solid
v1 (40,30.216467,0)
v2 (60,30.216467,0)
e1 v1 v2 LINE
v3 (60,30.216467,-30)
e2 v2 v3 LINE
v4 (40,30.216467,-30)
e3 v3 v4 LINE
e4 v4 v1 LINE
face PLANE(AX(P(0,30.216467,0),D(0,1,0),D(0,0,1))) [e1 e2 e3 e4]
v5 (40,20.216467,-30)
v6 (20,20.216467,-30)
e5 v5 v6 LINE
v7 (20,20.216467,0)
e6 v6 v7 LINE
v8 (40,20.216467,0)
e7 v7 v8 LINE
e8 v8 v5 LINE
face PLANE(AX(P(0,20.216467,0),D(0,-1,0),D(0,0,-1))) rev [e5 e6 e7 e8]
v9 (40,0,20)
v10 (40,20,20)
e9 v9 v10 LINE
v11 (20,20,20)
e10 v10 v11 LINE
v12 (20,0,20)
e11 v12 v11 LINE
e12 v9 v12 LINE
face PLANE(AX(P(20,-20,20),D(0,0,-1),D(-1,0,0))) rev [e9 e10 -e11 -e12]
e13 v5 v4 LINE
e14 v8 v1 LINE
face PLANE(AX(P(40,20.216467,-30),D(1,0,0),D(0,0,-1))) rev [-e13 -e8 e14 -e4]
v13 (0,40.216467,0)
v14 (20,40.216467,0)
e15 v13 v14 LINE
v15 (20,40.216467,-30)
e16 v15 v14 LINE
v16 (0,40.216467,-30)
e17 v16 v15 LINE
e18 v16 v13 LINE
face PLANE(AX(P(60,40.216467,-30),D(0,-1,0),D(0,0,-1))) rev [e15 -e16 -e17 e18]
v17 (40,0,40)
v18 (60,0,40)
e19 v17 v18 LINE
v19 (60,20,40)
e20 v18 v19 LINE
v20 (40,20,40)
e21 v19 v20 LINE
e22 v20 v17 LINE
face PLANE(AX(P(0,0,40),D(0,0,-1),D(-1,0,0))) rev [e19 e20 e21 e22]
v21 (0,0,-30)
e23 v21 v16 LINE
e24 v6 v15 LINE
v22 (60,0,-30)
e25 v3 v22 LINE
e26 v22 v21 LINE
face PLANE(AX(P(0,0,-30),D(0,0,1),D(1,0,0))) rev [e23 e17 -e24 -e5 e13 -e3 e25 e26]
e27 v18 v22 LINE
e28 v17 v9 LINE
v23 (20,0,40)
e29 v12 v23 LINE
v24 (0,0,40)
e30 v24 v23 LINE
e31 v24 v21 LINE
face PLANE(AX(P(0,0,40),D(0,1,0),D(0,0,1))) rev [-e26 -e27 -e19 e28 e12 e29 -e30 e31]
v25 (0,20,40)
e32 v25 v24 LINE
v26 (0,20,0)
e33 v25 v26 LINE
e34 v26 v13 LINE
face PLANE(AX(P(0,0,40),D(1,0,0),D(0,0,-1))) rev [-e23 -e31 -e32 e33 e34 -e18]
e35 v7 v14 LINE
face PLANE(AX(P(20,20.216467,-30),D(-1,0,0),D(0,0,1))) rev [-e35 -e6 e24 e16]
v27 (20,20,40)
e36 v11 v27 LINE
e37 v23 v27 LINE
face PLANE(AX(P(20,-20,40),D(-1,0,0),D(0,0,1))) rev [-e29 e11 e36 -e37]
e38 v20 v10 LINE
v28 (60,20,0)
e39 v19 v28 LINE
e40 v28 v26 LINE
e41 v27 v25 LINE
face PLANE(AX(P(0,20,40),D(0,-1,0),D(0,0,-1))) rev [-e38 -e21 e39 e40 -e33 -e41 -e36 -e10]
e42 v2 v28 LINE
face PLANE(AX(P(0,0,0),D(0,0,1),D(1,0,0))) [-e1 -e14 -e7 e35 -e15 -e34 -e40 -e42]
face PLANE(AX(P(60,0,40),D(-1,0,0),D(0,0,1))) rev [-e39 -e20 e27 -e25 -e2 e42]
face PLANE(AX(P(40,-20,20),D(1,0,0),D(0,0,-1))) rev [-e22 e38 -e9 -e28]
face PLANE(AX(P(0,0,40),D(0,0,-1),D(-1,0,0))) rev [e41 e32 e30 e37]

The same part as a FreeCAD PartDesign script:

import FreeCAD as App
import Part
import Sketcher
from FreeCAD import Vector


def add_polygon(sketch, points):
    """Adds a closed chain of lines whose ends are joined by coincident constraints."""
    first, n = sketch.GeometryCount, len(points)
    for a, b in zip(points, points[1:] + points[:1]):
        sketch.addGeometry(Part.LineSegment(App.Vector(*a, 0), App.Vector(*b, 0)), False)
    for i in range(n):
        sketch.addConstraint(Sketcher.Constraint("Coincident", first + i, 2, first + (i + 1) % n, 1))

doc = App.newDocument("Part")
body = doc.addObject("PartDesign::Body", "Body")

# Sketch on XY plane
sketch1 = doc.addObject("Sketcher::SketchObject", "Sketch")
body.addObject(sketch1)
sketch1.AttachmentSupport = (doc.XY_Plane, [""])
sketch1.MapMode = "FlatFace"
add_polygon(sketch1, [(0, 20), (0, 0), (60, 0), (60, 20)])  # lines 0-3
sketch1.addConstraint(Sketcher.Constraint("Vertical", 0))
sketch1.addConstraint(Sketcher.Constraint("Horizontal", 1))
sketch1.addConstraint(Sketcher.Constraint("Vertical", 2))
sketch1.addConstraint(Sketcher.Constraint("Horizontal", 3))
sketch1.addConstraint(Sketcher.Constraint("Coincident", 0, 2, -1, 1))
sketch1.addConstraint(Sketcher.Constraint("DistanceX", 1, 1, 1, 2, 60.0))
sketch1.addConstraint(Sketcher.Constraint("DistanceY", 0, 2, 0, 1, 20.0))
pad1 = doc.addObject("PartDesign::Pad", "Pad")
body.addObject(pad1)
pad1.Profile = sketch1
pad1.Length = 40

# Sketch on XZ plane
sketch2 = doc.addObject("Sketcher::SketchObject", "Sketch001")
body.addObject(sketch2)
sketch2.AttachmentSupport = (doc.XZ_Plane, [""])
sketch2.MapMode = "FlatFace"
sketch2.AttachmentOffset = App.Placement(Vector(0, 0, -20), App.Rotation())
add_polygon(sketch2, [(20, 20), (20, 40), (40, 40), (40, 20)])  # lines 0-3
sketch2.addConstraint(Sketcher.Constraint("Vertical", 0))
sketch2.addConstraint(Sketcher.Constraint("Horizontal", 1))
sketch2.addConstraint(Sketcher.Constraint("Vertical", 2))
sketch2.addConstraint(Sketcher.Constraint("Horizontal", 3))
sketch2.addConstraint(Sketcher.Constraint("Equal", 3, 0))
sketch2.addConstraint(Sketcher.Constraint("DistanceX", 1, 1, 1, 2, 20.0))
sketch2.addConstraint(Sketcher.Constraint("DistanceX", -1, 1, 0, 2, 20.0))
sketch2.addConstraint(Sketcher.Constraint("DistanceY", -1, 1, 0, 2, 40.0))
pocket1 = doc.addObject("PartDesign::Pocket", "Pocket")
body.addObject(pocket1)
pocket1.Profile = sketch2
pocket1.Length = 40
pocket1.Reversed = True

# Sketch on XY plane
sketch3 = doc.addObject("Sketcher::SketchObject", "Sketch002")
body.addObject(sketch3)
sketch3.AttachmentSupport = (doc.XY_Plane, [""])
sketch3.MapMode = "FlatFace"
add_polygon(sketch3, [(60, 40.216467), (60, 0), (0, 0), (0, 40.216467)])  # lines 0-3
sketch3.addConstraint(Sketcher.Constraint("Vertical", 0))
sketch3.addConstraint(Sketcher.Constraint("Horizontal", 1))
sketch3.addConstraint(Sketcher.Constraint("Vertical", 2))
sketch3.addConstraint(Sketcher.Constraint("Horizontal", 3))
sketch3.addConstraint(Sketcher.Constraint("Coincident", 1, 2, -1, 1))
sketch3.addConstraint(Sketcher.Constraint("DistanceX", 1, 2, 1, 1, 60.0))
sketch3.addConstraint(Sketcher.Constraint("DistanceY", 0, 2, 0, 1, 40.216467))
pad2 = doc.addObject("PartDesign::Pad", "Pad001")
body.addObject(pad2)
pad2.Profile = sketch3
pad2.Length = 30
pad2.Reversed = True

# Sketch on XZ plane
sketch4 = doc.addObject("Sketcher::SketchObject", "Sketch003")
body.addObject(sketch4)
sketch4.AttachmentSupport = (doc.XZ_Plane, [""])
sketch4.MapMode = "FlatFace"
sketch4.AttachmentOffset = App.Placement(Vector(0, 0, -40.216467), App.Rotation())
add_polygon(sketch4, [(20, -30), (20, 0), (40, 0), (40, -30)])  # lines 0-3
sketch4.addConstraint(Sketcher.Constraint("Vertical", 0))
sketch4.addConstraint(Sketcher.Constraint("Horizontal", 1))
sketch4.addConstraint(Sketcher.Constraint("Vertical", 2))
sketch4.addConstraint(Sketcher.Constraint("Horizontal", 3))
sketch4.addConstraint(Sketcher.Constraint("PointOnObject", 0, 2, -1))
sketch4.addConstraint(Sketcher.Constraint("DistanceX", 1, 1, 1, 2, 20.0))
sketch4.addConstraint(Sketcher.Constraint("DistanceY", 0, 1, 0, 2, 30.0))
sketch4.addConstraint(Sketcher.Constraint("DistanceX", -1, 1, 0, 2, 20.0))
pocket2 = doc.addObject("PartDesign::Pocket", "Pocket001")
body.addObject(pocket2)
pocket2.Profile = sketch4
pocket2.Length = 20
pocket2.Reversed = True

# Sketch on XZ plane
sketch5 = doc.addObject("Sketcher::SketchObject", "Sketch004")
body.addObject(sketch5)
sketch5.AttachmentSupport = (doc.XZ_Plane, [""])
sketch5.MapMode = "FlatFace"
sketch5.AttachmentOffset = App.Placement(Vector(0, 0, -40.216467), App.Rotation())
add_polygon(sketch5, [(40, -30), (40, 0), (60, 0), (60, -30)])  # lines 0-3
sketch5.addConstraint(Sketcher.Constraint("Vertical", 0))
sketch5.addConstraint(Sketcher.Constraint("Horizontal", 1))
sketch5.addConstraint(Sketcher.Constraint("Vertical", 2))
sketch5.addConstraint(Sketcher.Constraint("Horizontal", 3))
sketch5.addConstraint(Sketcher.Constraint("PointOnObject", 0, 2, -1))
sketch5.addConstraint(Sketcher.Constraint("DistanceX", 1, 1, 1, 2, 20.0))
sketch5.addConstraint(Sketcher.Constraint("DistanceY", 0, 1, 0, 2, 30.0))
sketch5.addConstraint(Sketcher.Constraint("DistanceX", -1, 1, 0, 2, 40.0))
pocket3 = doc.addObject("PartDesign::Pocket", "Pocket002")
body.addObject(pocket3)
pocket3.Profile = sketch5
pocket3.Length = 10
pocket3.Reversed = True

doc.recompute()
